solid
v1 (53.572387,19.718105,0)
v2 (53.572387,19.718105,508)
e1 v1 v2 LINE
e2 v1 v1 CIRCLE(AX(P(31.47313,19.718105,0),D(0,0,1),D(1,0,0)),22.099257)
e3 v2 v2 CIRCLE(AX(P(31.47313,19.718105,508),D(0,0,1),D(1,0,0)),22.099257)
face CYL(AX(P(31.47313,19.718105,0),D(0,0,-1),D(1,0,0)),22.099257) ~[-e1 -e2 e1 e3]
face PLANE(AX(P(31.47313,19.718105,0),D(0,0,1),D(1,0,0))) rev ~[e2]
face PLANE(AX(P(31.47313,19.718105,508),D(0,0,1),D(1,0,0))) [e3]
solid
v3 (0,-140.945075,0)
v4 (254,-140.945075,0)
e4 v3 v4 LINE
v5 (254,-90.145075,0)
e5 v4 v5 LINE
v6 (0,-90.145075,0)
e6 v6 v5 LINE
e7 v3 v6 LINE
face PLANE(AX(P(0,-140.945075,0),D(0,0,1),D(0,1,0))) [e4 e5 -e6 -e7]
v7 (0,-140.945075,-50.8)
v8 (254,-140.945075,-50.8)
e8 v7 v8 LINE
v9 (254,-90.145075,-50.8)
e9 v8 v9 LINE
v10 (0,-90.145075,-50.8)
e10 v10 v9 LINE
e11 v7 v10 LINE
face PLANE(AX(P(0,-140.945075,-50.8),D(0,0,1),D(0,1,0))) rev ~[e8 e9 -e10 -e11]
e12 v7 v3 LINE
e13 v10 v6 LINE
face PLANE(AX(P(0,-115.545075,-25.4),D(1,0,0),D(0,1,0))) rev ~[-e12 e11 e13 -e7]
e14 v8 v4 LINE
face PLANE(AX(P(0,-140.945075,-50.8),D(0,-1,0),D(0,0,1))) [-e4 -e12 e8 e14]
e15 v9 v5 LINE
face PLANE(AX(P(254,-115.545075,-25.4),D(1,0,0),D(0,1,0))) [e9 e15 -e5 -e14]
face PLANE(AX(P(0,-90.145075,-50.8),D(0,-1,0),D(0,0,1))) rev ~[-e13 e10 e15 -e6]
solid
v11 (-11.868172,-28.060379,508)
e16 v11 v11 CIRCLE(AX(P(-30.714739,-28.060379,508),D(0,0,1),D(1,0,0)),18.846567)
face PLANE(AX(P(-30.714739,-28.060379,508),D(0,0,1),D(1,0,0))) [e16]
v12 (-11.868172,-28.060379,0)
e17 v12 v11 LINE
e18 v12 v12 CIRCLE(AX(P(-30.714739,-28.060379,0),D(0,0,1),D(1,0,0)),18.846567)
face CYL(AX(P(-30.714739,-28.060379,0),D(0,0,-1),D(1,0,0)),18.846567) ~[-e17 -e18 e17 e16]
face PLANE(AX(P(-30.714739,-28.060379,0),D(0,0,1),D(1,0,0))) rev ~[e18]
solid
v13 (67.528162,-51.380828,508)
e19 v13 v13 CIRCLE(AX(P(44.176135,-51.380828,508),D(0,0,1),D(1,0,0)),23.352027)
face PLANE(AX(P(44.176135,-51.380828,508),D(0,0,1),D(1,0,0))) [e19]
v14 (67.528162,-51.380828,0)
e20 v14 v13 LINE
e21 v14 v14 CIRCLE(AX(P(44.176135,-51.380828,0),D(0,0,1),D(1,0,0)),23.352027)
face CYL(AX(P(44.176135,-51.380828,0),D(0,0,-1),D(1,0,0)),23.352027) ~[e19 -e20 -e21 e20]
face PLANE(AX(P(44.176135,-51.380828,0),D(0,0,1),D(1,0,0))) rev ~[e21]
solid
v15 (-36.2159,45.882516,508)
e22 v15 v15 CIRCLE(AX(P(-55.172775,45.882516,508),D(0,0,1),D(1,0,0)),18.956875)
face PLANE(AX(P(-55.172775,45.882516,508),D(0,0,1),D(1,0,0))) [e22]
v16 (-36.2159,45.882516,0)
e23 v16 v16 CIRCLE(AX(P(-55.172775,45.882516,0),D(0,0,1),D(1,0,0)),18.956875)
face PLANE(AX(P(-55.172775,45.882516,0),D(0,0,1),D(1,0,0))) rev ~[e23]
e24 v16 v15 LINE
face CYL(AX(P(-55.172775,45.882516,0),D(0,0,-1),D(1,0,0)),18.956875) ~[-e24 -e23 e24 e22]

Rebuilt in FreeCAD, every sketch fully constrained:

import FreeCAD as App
import Part
import Sketcher
Q = App.Units.Quantity

doc = App.newDocument("Part")
body = doc.addObject("PartDesign::Body", "Body")
body.AllowCompound = True

# Sketch on XY plane
sketch1 = body.newObject("Sketcher::SketchObject", "Sketch")
sketch1.AttachmentSupport = (doc.getObject("XY_Plane"), [""])
sketch1.MapMode = "FlatFace"
sketch1.addGeometry([
    Part.Circle(App.Vector(-55, 46, 0), App.Vector(0, 0, 1), 19),
    Part.Circle(App.Vector(-31, -28, 0), App.Vector(0, 0, 1), 19),
    Part.Circle(App.Vector(31, 20, 0), App.Vector(0, 0, 1), 22),
    Part.Circle(App.Vector(44, -51, 0), App.Vector(0, 0, 1), 23),
], False)
sketch1.addConstraint([
    Sketcher.Constraint("Diameter", 0, 37.91375),
    Sketcher.Constraint("Diameter", 1, 37.693134),
    Sketcher.Constraint("Diameter", 2, 44.198514),
    Sketcher.Constraint("Diameter", 3, 46.704054),
    Sketcher.Constraint("DistanceX", 1, 3, -1, 1, 30.714739),
    Sketcher.Constraint("DistanceY", 1, 3, -1, 1, 28.060379),
    Sketcher.Constraint("DistanceX", -1, 1, 2, 3, 31.47313),
    Sketcher.Constraint("DistanceY", 2, 3, 0, 3, 26.164411),
    Sketcher.Constraint("DistanceY", 3, 3, 1, 3, 23.320449),
    Sketcher.Constraint("DistanceX", 0, 3, 3, 3, 99.34891),
    Sketcher.Constraint("DistanceX", 0, 3, -1, 1, 55.172775),
    Sketcher.Constraint("DistanceY", -1, 1, 0, 3, 45.882516),
])
pad1 = body.newObject("PartDesign::Pad", "Pad")
pad1.Profile = sketch1
pad1.Length = Q("20 in")
body2 = doc.addObject("PartDesign::Body", "Body001")

# Sketch on YZ plane
sketch2 = body2.newObject("Sketcher::SketchObject", "Sketch001")
sketch2.AttachmentSupport = (doc.getObject("YZ_Plane001"), [""])
sketch2.MapMode = "FlatFace"
sketch2.addGeometry([
    Part.LineSegment(App.Vector(-141, 0, 0), App.Vector(-141, -51, 0)),
    Part.LineSegment(App.Vector(-141, -51, 0), App.Vector(-90, -51, 0)),
    Part.LineSegment(App.Vector(-90, -51, 0), App.Vector(-90, 0, 0)),
    Part.LineSegment(App.Vector(-90, 0, 0), App.Vector(-141, 0, 0)),
], False)
sketch2.addConstraint([
    Sketcher.Constraint("Coincident", 0, 2, 1, 1),
    Sketcher.Constraint("Coincident", 1, 2, 2, 1),
    Sketcher.Constraint("Coincident", 2, 2, 3, 1),
    Sketcher.Constraint("Coincident", 3, 2, 0, 1),
    Sketcher.Constraint("Vertical", 0),
    Sketcher.Constraint("Horizontal", 1),
    Sketcher.Constraint("Vertical", 2),
    Sketcher.Constraint("Horizontal", 3),
    Sketcher.Constraint("PointOnObject", 2, 2, -1),
    Sketcher.Constraint("Equal", 3, 0),
    Sketcher.Constraint("DistanceX", 1, 1, 1, 2, Q("2 in")),
    Sketcher.Constraint("DistanceX", 0, 2, -1, 1, 140.945075),
])
pad2 = body2.newObject("PartDesign::Pad", "Pad001")
pad2.Profile = sketch2
pad2.Length = Q("10 in")

doc.recompute()
